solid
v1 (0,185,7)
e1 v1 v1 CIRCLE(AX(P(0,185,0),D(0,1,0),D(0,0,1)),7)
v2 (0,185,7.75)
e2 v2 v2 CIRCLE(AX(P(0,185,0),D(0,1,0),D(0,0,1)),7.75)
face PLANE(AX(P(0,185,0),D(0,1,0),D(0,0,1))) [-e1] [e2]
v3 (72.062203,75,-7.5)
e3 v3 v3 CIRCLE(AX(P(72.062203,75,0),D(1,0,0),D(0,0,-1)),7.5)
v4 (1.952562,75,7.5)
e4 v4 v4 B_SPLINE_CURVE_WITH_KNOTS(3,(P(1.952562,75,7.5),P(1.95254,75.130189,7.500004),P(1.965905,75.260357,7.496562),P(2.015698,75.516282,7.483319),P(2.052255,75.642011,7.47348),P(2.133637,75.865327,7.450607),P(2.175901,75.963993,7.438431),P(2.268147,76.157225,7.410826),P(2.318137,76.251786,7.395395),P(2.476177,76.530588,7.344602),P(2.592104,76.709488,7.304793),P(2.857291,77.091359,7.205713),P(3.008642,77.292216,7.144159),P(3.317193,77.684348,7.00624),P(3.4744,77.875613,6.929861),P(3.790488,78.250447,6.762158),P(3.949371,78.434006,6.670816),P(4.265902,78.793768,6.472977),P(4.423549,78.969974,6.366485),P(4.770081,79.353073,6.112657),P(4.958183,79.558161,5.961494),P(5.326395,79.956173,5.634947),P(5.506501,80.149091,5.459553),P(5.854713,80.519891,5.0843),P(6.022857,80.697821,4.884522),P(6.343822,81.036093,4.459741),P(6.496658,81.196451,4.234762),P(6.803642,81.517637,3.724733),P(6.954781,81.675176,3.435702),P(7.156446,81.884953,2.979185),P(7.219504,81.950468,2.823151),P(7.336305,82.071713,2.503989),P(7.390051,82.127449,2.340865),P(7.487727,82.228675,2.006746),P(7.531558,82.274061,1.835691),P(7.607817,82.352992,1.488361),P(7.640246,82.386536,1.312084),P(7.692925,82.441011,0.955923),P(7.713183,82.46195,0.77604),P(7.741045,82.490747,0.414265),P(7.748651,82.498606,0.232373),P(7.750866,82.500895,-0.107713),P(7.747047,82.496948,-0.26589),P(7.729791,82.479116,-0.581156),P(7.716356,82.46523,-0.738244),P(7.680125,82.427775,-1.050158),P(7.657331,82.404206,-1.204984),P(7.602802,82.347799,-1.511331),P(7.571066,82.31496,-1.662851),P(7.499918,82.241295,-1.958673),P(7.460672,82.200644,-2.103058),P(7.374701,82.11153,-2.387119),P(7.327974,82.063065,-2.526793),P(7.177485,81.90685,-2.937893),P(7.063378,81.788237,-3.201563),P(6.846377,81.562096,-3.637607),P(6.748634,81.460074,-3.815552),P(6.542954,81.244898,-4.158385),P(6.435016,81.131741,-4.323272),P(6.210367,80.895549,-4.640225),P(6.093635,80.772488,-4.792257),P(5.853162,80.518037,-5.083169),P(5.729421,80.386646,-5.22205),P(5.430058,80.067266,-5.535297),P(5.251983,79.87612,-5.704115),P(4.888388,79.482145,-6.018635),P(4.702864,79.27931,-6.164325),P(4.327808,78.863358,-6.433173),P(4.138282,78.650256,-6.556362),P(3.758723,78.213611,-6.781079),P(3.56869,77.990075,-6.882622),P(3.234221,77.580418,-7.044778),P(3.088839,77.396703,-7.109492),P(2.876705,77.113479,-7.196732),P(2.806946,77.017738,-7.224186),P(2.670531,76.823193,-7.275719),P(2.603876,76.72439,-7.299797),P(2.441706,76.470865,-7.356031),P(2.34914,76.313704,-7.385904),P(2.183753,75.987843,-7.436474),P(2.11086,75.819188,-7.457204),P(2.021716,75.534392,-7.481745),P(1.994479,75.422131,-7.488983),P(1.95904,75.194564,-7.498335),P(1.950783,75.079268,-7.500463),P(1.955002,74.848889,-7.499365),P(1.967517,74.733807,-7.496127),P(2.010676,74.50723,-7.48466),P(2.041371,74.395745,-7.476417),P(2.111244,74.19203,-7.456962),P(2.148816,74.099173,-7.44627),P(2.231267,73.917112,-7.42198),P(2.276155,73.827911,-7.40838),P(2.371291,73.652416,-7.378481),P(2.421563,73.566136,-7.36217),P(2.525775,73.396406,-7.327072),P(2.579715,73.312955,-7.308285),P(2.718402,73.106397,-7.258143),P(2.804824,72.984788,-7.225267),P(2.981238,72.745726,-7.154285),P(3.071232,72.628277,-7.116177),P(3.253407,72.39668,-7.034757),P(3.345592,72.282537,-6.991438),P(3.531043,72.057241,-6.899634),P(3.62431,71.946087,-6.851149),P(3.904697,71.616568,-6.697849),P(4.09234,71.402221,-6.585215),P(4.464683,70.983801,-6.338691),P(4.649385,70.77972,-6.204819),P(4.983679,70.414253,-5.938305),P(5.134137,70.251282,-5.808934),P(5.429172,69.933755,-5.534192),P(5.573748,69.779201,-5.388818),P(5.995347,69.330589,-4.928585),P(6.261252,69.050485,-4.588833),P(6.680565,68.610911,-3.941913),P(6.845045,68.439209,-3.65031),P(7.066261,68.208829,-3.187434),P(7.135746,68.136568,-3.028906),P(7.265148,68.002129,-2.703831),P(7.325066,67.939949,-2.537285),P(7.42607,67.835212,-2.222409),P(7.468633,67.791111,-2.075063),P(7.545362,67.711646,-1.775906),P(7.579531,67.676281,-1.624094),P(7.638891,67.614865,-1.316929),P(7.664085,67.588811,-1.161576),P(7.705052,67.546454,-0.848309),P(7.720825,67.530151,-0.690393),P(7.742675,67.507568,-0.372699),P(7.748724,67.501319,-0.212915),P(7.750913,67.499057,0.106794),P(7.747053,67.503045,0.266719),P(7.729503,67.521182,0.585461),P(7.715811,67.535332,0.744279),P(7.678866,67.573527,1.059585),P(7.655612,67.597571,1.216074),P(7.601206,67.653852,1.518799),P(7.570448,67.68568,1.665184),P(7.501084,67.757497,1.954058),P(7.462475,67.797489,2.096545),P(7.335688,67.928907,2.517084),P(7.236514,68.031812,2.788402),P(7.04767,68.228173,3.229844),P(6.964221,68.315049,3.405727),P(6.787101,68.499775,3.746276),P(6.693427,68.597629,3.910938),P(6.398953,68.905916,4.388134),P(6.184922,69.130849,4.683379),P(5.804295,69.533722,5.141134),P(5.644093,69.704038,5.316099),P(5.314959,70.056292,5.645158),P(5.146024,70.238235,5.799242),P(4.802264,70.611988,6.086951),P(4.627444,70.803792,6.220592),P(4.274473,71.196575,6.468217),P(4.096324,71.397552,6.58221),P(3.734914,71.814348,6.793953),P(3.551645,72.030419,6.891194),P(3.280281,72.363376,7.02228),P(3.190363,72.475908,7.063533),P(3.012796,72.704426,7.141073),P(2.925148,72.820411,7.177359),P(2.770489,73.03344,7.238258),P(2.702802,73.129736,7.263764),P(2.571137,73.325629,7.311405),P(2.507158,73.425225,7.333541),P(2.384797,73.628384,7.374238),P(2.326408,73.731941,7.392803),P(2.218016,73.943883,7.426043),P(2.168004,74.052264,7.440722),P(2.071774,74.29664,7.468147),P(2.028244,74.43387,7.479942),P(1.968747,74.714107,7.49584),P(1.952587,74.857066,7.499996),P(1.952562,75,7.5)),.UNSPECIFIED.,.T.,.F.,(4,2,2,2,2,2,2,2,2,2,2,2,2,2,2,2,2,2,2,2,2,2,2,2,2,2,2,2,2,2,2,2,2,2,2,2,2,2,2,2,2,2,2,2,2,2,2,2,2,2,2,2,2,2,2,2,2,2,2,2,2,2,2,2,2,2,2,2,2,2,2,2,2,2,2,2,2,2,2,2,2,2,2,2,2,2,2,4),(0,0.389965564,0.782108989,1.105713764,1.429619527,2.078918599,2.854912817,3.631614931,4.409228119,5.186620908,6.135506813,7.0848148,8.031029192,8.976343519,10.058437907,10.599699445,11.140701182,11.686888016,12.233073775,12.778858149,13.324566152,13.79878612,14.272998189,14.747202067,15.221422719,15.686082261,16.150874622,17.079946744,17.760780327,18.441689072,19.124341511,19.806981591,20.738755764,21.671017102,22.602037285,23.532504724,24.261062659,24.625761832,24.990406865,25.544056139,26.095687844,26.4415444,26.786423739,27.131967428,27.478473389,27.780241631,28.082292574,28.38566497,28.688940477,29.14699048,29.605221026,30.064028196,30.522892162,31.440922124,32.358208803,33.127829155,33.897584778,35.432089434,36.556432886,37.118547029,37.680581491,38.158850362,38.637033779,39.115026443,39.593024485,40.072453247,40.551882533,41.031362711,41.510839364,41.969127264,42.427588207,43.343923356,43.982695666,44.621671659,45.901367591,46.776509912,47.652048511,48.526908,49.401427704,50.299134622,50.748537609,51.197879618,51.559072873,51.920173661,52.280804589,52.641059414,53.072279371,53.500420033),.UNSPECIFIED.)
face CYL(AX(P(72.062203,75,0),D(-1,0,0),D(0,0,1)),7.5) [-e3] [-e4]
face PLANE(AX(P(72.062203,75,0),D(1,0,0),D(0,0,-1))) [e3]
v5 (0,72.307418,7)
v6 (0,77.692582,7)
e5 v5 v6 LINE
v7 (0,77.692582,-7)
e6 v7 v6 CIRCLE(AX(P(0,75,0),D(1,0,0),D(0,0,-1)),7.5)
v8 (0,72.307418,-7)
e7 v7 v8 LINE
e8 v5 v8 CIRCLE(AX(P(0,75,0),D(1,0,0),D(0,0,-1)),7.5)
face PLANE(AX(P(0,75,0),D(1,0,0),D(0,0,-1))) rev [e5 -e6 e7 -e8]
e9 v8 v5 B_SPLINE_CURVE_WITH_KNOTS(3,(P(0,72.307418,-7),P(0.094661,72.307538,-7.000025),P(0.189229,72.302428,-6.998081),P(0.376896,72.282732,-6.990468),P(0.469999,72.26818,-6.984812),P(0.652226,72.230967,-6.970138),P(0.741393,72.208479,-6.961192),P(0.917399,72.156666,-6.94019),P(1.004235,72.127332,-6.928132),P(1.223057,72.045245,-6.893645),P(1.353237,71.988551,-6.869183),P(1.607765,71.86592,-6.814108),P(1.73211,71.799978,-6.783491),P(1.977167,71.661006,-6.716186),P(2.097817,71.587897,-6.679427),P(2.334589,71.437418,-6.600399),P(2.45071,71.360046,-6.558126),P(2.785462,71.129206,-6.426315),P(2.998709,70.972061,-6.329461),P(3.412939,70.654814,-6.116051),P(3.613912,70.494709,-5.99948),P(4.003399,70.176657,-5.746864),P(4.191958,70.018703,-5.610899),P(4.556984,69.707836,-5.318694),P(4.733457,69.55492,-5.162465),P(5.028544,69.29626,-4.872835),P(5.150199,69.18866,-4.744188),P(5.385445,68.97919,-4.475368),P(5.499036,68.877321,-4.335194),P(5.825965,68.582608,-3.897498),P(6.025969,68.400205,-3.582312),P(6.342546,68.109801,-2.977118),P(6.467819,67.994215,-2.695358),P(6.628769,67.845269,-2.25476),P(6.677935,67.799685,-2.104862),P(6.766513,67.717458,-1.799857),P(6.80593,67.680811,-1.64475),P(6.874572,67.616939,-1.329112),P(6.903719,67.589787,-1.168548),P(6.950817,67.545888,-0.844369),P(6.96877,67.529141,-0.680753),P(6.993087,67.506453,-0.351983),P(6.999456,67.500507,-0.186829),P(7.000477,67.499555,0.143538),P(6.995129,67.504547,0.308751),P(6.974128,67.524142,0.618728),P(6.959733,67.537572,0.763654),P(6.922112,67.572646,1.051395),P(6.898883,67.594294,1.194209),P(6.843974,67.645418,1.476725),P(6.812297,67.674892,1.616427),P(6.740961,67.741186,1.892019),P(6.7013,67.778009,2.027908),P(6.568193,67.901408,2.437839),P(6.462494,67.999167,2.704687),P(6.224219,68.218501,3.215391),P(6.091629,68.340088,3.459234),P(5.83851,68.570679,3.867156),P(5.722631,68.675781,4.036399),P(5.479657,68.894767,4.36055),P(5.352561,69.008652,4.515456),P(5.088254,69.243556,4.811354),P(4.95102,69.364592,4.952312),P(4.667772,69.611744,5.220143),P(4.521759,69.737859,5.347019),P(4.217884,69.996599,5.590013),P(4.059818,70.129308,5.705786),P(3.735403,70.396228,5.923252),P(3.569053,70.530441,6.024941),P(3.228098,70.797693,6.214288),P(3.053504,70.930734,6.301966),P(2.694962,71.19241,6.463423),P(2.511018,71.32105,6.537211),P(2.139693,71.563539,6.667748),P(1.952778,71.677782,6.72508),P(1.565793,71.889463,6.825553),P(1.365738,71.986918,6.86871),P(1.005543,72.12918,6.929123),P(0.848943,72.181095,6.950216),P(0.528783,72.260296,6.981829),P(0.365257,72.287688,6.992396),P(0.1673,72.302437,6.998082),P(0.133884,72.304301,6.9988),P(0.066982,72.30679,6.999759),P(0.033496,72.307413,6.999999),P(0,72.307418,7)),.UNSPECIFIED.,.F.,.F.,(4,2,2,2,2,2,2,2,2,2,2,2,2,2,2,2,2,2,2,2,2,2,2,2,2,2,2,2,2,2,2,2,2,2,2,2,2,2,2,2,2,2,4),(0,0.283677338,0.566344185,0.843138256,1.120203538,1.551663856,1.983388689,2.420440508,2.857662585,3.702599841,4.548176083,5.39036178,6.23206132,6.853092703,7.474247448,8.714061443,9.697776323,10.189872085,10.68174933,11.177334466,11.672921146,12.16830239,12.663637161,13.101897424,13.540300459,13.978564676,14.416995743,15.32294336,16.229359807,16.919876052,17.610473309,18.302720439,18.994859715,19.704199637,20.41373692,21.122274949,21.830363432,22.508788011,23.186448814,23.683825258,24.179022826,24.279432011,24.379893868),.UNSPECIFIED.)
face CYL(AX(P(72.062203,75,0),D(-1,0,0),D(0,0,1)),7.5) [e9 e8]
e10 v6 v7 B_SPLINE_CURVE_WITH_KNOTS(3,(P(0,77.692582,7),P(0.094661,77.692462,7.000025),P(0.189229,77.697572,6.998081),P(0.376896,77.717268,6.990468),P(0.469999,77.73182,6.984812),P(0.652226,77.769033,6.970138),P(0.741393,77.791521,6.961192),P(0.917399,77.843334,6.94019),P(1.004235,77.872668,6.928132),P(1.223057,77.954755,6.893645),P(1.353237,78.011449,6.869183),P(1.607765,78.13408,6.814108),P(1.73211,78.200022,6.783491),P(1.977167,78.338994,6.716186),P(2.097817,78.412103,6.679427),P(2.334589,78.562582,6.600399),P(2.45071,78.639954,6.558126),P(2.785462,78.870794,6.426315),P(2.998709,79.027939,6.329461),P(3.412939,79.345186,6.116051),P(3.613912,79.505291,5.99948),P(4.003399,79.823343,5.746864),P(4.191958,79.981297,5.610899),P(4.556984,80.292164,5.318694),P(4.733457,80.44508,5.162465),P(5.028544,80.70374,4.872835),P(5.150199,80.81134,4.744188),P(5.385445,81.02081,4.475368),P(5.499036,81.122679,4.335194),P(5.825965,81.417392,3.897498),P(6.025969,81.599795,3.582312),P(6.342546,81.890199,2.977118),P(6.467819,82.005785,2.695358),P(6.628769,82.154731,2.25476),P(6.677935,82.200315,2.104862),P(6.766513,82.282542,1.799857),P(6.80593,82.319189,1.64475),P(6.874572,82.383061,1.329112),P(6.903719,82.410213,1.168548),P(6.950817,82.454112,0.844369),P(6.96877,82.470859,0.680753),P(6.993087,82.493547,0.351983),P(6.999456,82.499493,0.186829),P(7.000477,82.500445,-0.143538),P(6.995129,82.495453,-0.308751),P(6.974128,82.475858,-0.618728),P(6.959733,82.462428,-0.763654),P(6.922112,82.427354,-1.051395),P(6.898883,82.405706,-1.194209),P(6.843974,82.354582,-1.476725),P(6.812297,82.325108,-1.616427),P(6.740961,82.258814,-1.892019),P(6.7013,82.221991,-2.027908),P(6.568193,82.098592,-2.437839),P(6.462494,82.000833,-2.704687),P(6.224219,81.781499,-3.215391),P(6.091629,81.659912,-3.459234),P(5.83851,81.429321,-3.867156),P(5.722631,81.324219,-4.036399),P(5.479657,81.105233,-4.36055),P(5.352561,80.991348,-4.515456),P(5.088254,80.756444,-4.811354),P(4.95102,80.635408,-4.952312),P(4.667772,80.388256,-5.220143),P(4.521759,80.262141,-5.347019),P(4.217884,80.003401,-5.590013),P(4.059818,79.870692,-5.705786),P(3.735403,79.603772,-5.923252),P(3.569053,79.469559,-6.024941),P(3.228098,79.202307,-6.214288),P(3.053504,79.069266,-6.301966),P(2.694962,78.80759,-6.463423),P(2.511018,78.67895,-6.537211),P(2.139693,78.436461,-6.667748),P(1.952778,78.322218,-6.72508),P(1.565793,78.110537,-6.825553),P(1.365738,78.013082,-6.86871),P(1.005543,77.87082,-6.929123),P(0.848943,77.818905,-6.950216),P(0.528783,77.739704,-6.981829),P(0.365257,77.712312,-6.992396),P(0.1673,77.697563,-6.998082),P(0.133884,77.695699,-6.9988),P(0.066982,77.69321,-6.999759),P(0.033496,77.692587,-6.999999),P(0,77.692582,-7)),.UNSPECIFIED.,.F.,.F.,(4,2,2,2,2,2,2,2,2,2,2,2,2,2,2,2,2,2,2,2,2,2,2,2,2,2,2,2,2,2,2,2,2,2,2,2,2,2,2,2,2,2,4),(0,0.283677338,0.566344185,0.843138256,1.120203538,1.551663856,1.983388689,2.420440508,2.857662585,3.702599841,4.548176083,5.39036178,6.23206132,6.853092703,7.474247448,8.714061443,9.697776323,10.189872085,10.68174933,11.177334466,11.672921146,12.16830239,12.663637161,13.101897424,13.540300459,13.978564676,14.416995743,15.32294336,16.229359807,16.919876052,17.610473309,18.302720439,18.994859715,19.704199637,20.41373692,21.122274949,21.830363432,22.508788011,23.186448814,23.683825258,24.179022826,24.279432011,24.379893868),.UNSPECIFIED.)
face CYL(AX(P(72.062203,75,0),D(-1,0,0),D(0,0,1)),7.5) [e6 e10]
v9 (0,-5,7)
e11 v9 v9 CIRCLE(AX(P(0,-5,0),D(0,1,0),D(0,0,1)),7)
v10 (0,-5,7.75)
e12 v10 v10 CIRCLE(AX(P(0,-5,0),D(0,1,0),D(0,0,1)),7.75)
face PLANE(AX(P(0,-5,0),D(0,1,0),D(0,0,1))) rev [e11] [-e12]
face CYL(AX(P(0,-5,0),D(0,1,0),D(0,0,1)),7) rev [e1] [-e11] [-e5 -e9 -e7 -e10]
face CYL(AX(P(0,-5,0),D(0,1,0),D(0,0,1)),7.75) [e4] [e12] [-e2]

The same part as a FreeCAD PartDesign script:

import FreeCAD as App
import Part
import Sketcher
Q = App.Units.Quantity

doc = App.newDocument("Part")
body = doc.addObject("PartDesign::Body", "Body")

# Sketch on XZ plane
sketch1 = body.newObject("Sketcher::SketchObject", "Sketch")
sketch1.AttachmentSupport = (doc.getObject("XZ_Plane"), [""])
sketch1.MapMode = "FlatFace"
sketch1.addGeometry([
    Part.Circle(App.Vector(0, 0, 0), App.Vector(0, 0, 1), 7.75),
    Part.Circle(App.Vector(0, 0, 0), App.Vector(0, 0, 1), 7),
], False)
sketch1.addConstraint([
    Sketcher.Constraint("Coincident", 0, 3, -1, 1),
    Sketcher.Constraint("Coincident", 1, 3, -1, 1),
    Sketcher.Constraint("Diameter", 1, Q("14 mm")),
    Sketcher.Constraint("Diameter", 0, Q("15.5 mm")),
])
pad1 = body.newObject("PartDesign::Pad", "Pad")
pad1.Profile = sketch1
pad1.Type = "TwoLengths"
pad1.Length = 160
pad1.Length2 = 5
pad1.Reversed = True

# Sketch on YZ plane
sketch2 = body.newObject("Sketcher::SketchObject", "Sketch001")
sketch2.AttachmentSupport = (doc.getObject("YZ_Plane"), [""])
sketch2.MapMode = "FlatFace"
sketch2.addGeometry(Part.Circle(App.Vector(75, 0, 0), App.Vector(0, 0, 1), 7.5), False)
sketch2.addConstraint([
    Sketcher.Constraint("PointOnObject", 0, 3, -1),
    Sketcher.Constraint("Diameter", 0, Q("15 mm")),
    Sketcher.Constraint("DistanceX", -1, 1, 0, 3, Q("75 mm")),
])
pad2 = body.newObject("PartDesign::Pad", "Pad001")
pad2.Profile = sketch2
pad2.Length = 72.062203

# Sketch on XZ plane
sketch3 = body.newObject("Sketcher::SketchObject", "Sketch002")
sketch3.AttachmentSupport = (doc.getObject("XZ_Plane"), [""])
sketch3.MapMode = "FlatFace"
sketch3.AttachmentOffset = App.Placement(App.Vector(0, 0, -160), App.Rotation())
sketch3.addGeometry([
    Part.Circle(App.Vector(0, 0, 0), App.Vector(0, 0, 1), 7.75),
    Part.Circle(App.Vector(0, 0, 0), App.Vector(0, 0, 1), 7),
], False)
sketch3.addConstraint([
    Sketcher.Constraint("Coincident", 0, 3, -1, 1),
    Sketcher.Constraint("Coincident", 1, 3, -1, 1),
    Sketcher.Constraint("Diameter", 1, Q("14 mm")),
    Sketcher.Constraint("Diameter", 0, Q("15.5 mm")),
])
pad3 = body.newObject("PartDesign::Pad", "Pad002")
pad3.Profile = sketch3
pad3.Length = 25
pad3.Reversed = True

doc.recompute()
